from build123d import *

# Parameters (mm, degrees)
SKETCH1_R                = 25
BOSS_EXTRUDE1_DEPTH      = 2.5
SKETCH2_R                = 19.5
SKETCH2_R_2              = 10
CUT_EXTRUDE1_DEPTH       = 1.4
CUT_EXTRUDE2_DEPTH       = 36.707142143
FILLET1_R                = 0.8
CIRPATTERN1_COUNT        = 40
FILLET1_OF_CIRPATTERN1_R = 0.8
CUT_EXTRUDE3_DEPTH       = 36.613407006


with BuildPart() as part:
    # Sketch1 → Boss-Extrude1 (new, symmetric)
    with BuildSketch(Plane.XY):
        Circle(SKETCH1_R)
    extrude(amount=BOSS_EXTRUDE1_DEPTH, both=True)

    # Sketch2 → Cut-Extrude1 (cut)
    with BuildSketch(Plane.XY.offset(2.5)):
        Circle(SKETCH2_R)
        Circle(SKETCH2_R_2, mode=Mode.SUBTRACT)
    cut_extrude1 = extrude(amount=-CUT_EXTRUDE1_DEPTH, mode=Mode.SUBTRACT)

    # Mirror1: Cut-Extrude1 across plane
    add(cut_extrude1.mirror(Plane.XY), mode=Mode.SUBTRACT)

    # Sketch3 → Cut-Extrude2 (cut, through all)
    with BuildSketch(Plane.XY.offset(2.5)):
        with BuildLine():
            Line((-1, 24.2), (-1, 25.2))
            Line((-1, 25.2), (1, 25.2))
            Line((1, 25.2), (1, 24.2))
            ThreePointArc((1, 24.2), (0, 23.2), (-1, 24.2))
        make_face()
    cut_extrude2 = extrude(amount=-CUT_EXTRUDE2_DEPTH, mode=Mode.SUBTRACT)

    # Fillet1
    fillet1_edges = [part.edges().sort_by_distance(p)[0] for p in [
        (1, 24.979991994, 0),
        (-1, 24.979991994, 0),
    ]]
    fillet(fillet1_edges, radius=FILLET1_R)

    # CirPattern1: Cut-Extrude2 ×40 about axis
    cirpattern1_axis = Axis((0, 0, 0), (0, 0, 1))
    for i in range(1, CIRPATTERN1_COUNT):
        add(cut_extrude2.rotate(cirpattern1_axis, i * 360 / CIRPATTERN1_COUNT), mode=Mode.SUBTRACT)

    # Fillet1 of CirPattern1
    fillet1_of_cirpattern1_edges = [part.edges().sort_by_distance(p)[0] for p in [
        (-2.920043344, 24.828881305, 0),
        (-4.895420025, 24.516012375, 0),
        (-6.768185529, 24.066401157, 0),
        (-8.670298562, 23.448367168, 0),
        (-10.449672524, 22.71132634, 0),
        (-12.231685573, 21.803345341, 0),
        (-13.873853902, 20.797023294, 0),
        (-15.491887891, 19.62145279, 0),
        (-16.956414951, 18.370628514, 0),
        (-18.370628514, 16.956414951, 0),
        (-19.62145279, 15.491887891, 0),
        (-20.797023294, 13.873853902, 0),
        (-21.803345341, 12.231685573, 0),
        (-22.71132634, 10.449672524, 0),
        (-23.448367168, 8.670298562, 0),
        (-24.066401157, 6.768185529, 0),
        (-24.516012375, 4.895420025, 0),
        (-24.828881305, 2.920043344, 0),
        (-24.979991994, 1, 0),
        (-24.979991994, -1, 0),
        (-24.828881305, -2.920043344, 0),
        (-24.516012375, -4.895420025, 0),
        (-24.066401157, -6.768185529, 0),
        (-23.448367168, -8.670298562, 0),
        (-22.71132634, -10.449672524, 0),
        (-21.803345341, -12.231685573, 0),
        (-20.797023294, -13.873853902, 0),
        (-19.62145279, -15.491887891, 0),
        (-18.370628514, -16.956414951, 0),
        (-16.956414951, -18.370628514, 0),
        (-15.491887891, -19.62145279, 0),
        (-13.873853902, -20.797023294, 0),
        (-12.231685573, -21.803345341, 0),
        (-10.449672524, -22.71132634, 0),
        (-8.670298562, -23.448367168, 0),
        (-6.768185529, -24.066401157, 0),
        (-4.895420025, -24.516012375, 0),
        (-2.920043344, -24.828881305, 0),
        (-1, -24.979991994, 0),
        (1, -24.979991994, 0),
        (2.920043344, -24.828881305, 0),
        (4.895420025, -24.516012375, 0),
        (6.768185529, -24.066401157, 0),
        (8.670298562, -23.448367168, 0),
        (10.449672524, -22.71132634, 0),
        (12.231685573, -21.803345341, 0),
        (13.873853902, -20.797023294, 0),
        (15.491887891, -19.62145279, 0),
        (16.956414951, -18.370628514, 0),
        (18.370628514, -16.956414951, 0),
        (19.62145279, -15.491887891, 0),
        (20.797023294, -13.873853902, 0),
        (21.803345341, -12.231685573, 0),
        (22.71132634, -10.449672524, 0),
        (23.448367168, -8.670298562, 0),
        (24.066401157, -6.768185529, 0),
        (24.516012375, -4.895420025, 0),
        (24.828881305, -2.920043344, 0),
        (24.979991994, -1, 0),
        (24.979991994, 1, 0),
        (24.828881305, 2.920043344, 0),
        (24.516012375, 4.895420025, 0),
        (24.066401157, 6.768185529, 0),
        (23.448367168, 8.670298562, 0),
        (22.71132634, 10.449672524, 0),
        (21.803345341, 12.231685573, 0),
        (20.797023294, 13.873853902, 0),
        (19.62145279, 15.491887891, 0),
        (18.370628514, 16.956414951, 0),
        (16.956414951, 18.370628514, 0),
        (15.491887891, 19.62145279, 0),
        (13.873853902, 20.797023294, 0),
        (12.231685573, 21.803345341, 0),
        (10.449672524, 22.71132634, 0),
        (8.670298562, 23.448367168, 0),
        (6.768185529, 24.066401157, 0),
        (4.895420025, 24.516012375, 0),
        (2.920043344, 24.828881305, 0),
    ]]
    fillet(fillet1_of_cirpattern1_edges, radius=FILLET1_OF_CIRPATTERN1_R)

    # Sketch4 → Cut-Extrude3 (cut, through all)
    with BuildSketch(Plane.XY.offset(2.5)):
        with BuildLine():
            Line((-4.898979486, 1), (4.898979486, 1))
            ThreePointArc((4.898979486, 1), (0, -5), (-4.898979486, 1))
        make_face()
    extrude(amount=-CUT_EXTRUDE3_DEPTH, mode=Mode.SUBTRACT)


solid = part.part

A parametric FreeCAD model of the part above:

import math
import FreeCAD as App
import Part
import Sketcher
from FreeCAD import Vector
Q = App.Units.Quantity


def edges_at(feature, points):
    """Names of the edges that pass closest to the given points."""
    edges = feature.Shape.Edges
    near = lambda p: min(range(len(edges)), key=lambda i: edges[i].distToShape(Part.Vertex(*p))[0])
    return sorted({f"Edge{near(p) + 1}" for p in points})

doc = App.newDocument("Part")
body = doc.addObject("PartDesign::Body", "Body")

sketch1 = body.newObject("Sketcher::SketchObject", "Sketch")
sketch1.AttachmentSupport = (doc.getObject("XY_Plane"), [""])
sketch1.MapMode = "FlatFace"
sketch1.addGeometry(Part.Circle(Vector(0, 0, 0), Vector(0, 0, 1), 25), False)
sketch1.addConstraint([
    Sketcher.Constraint("Coincident", 0, 3, -1, 1),
    Sketcher.Constraint("Diameter", 0, Q("50 mm")),
])
pad1 = body.newObject("PartDesign::Pad", "Pad")
pad1.Profile = sketch1
pad1.Length = 5
pad1.Midplane = True

sketch2 = body.newObject("Sketcher::SketchObject", "Sketch001")
sketch2.AttachmentSupport = (doc.getObject("XY_Plane"), [""])
sketch2.MapMode = "FlatFace"
sketch2.AttachmentOffset = App.Placement(Vector(0, 0, 2.5), App.Rotation())
sketch2.addGeometry([
    Part.Circle(Vector(0, 0, 0), Vector(0, 0, 1), 20),
    Part.Circle(Vector(0, 0, 0), Vector(0, 0, 1), 10),
], False)
sketch2.addConstraint([
    Sketcher.Constraint("Coincident", 0, 3, -1, 1),
    Sketcher.Constraint("Coincident", 1, 3, -1, 1),
    Sketcher.Constraint("Diameter", 0, Q("39 mm")),
    Sketcher.Constraint("Diameter", 1, Q("20 mm")),
])
pocket1 = body.newObject("PartDesign::Pocket", "Pocket")
pocket1.Profile = sketch2
pocket1.Length = 1.4
doc.recompute()

mirrored = body.newObject("PartDesign::Mirrored", "Mirrored")
mirrored.Originals = [pocket1]
mirrored.MirrorPlane = (doc.getObject("XY_Plane"), [""])
body.Tip = mirrored

sketch3 = body.newObject("Sketcher::SketchObject", "Sketch002")
sketch3.AttachmentSupport = (doc.getObject("XY_Plane"), [""])
sketch3.MapMode = "FlatFace"
sketch3.AttachmentOffset = App.Placement(Vector(0, 0, 2.5), App.Rotation())
sketch3.addGeometry([
    Part.LineSegment(Vector(-1, 25.2, 0), Vector(-1, 24.2, 0)),
    Part.ArcOfCircle(Part.Circle(Vector(0, 24.2, 0), Vector(0, 0, 1), 1), math.radians(180), math.radians(360)),
    Part.LineSegment(Vector(1, 24.2, 0), Vector(1, 25.2, 0)),
    Part.LineSegment(Vector(1, 25.2, 0), Vector(-1, 25.2, 0)),
], False)
sketch3.addConstraint([
    Sketcher.Constraint("Tangent", 0, 2, 1, 1),
    Sketcher.Constraint("Tangent", 1, 2, 2, 1),
    Sketcher.Constraint("Coincident", 2, 2, 3, 1),
    Sketcher.Constraint("Coincident", 3, 2, 0, 1),
    Sketcher.Constraint("Vertical", 0),
    Sketcher.Constraint("Vertical", 2),
    Sketcher.Constraint("Horizontal", 3),
    Sketcher.Constraint("PointOnObject", 1, 3, -2),
    Sketcher.Constraint("Radius", 1, Q("1 mm")),
    Sketcher.Constraint("DistanceY", 0, 2, 0, 1, Q("1 mm")),
    Sketcher.Constraint("DistanceY", -1, 1, 1, 3, Q("24.2 mm")),
])
pocket2 = body.newObject("PartDesign::Pocket", "Pocket001")
pocket2.Profile = sketch3
pocket2.Type = "ThroughAll"
doc.recompute()

fillet = body.newObject("PartDesign::Fillet", "Fillet")
fillet.Base = (pocket2, edges_at(pocket2, [(1, 24.98, 0), (-1, 24.98, 0)]))
fillet.Radius = 0.8
doc.recompute()

polarpattern = body.newObject("PartDesign::PolarPattern", "PolarPattern")
polarpattern.Originals = [pocket2]
polarpattern.Axis = (doc.getObject("Z_Axis"), [""])
polarpattern.Angle = 360
polarpattern.Occurrences = 40
body.Tip = polarpattern
doc.recompute()

fillet2 = body.newObject("PartDesign::Fillet", "Fillet001")
fillet2.Base = (polarpattern, edges_at(polarpattern, [
    (-2.92, 24.829, 0),
    (-4.895, 24.516, 0),
    (-6.768, 24.066, 0),
    (-8.67, 23.448, 0),
    (-10.45, 22.711, 0),
    (-12.232, 21.803, 0),
    (-13.874, 20.797, 0),
    (-15.492, 19.621, 0),
    (-16.956, 18.371, 0),
    (-18.371, 16.956, 0),
    (-19.621, 15.492, 0),
    (-20.797, 13.874, 0),
    (-21.803, 12.232, 0),
    (-22.711, 10.45, 0),
    (-23.448, 8.67, 0),
    (-24.066, 6.768, 0),
    (-24.516, 4.895, 0),
    (-24.829, 2.92, 0),
    (-24.98, 1, 0),
    (-24.98, -1, 0),
    (-24.829, -2.92, 0),
    (-24.516, -4.895, 0),
    (-24.066, -6.768, 0),
    (-23.448, -8.67, 0),
    (-22.711, -10.45, 0),
    (-21.803, -12.232, 0),
    (-20.797, -13.874, 0),
    (-19.621, -15.492, 0),
    (-18.371, -16.956, 0),
    (-16.956, -18.371, 0),
    (-15.492, -19.621, 0),
    (-13.874, -20.797, 0),
    (-12.232, -21.803, 0),
    (-10.45, -22.711, 0),
    (-8.67, -23.448, 0),
    (-6.768, -24.066, 0),
    (-4.895, -24.516, 0),
    (-2.92, -24.829, 0),
    (-1, -24.98, 0),
    (1, -24.98, 0),
    (2.92, -24.829, 0),
    (4.895, -24.516, 0),
    (6.768, -24.066, 0),
    (8.67, -23.448, 0),
    (10.45, -22.711, 0),
    (12.232, -21.803, 0),
    (13.874, -20.797, 0),
    (15.492, -19.621, 0),
    (16.956, -18.371, 0),
    (18.371, -16.956, 0),
    (19.621, -15.492, 0),
    (20.797, -13.874, 0),
    (21.803, -12.232, 0),
    (22.711, -10.45, 0),
    (23.448, -8.67, 0),
    (24.066, -6.768, 0),
    (24.516, -4.895, 0),
    (24.829, -2.92, 0),
    (24.98, -1, 0),
    (24.98, 1, 0),
    (24.829, 2.92, 0),
    (24.516, 4.895, 0),
    (24.066, 6.768, 0),
    (23.448, 8.67, 0),
    (22.711, 10.45, 0),
    (21.803, 12.232, 0),
    (20.797, 13.874, 0),
    (19.621, 15.492, 0),
    (18.371, 16.956, 0),
    (16.956, 18.371, 0),
    (15.492, 19.621, 0),
    (13.874, 20.797, 0),
    (12.232, 21.803, 0),
    (10.45, 22.711, 0),
    (8.67, 23.448, 0),
    (6.768, 24.066, 0),
    (4.895, 24.516, 0),
    (2.92, 24.829, 0),
]))
fillet2.Radius = 0.8

sketch4 = body.newObject("Sketcher::SketchObject", "Sketch003")
sketch4.AttachmentSupport = (doc.getObject("XY_Plane"), [""])
sketch4.MapMode = "FlatFace"
sketch4.AttachmentOffset = App.Placement(Vector(0, 0, 2.5), App.Rotation())
sketch4.addGeometry([
    Part.LineSegment(Vector(5, 1, 0), Vector(-5, 1, 0)),
    Part.ArcOfCircle(Part.Circle(Vector(0, 0, 0), Vector(0, 0, 1), 5), math.radians(168), math.radians(372)),
], False)
sketch4.addConstraint([
    Sketcher.Constraint("Coincident", 0, 1, 1, 2),
    Sketcher.Constraint("Coincident", 1, 1, 0, 2),
    Sketcher.Constraint("Horizontal", 0),
    Sketcher.Constraint("Coincident", 1, 3, -1, 1),
    Sketcher.Constraint("Radius", 1, Q("5 mm")),
    Sketcher.Constraint("DistanceY", -1, 1, 0, 1, Q("1 mm")),
])
pocket3 = body.newObject("PartDesign::Pocket", "Pocket002")
pocket3.Profile = sketch4
pocket3.Type = "ThroughAll"

doc.recompute()
